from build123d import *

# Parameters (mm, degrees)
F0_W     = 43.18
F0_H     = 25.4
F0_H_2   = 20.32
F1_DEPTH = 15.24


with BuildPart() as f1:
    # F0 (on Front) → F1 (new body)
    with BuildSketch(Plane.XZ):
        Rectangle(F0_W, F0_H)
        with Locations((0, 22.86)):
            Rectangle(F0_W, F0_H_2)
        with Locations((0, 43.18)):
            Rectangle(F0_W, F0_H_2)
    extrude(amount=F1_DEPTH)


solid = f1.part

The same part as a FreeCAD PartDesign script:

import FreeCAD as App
import Part
import Sketcher
Q = App.Units.Quantity


def add_polygon(sketch, points):
    """Adds a closed chain of lines whose ends are joined by coincident constraints."""
    first, n = sketch.GeometryCount, len(points)
    for a, b in zip(points, points[1:] + points[:1]):
        sketch.addGeometry(Part.LineSegment(App.Vector(*a, 0), App.Vector(*b, 0)), False)
    for i in range(n):
        sketch.addConstraint(Sketcher.Constraint("Coincident", first + i, 2, first + (i + 1) % n, 1))

doc = App.newDocument("Part")
body = doc.addObject("PartDesign::Body", "Body")

# Sketch on XZ plane
sketch1 = doc.addObject("Sketcher::SketchObject", "Sketch")
body.addObject(sketch1)
sketch1.AttachmentSupport = (doc.XZ_Plane, [""])
sketch1.MapMode = "FlatFace"
add_polygon(sketch1, [(-22, -13), (22, -13), (22, 53), (-22, 53)])  # lines 0-3
sketch1.addConstraint(Sketcher.Constraint("Horizontal", 0))
sketch1.addConstraint(Sketcher.Constraint("Vertical", 1))
sketch1.addConstraint(Sketcher.Constraint("Horizontal", 2))
sketch1.addConstraint(Sketcher.Constraint("Vertical", 3))
sketch1.addConstraint(Sketcher.Constraint("DistanceX", 0, 1, 0, 2, Q("1.7 in")))
sketch1.addConstraint(Sketcher.Constraint("DistanceY", 1, 1, 1, 2, Q("2.6 in")))
sketch1.addConstraint(Sketcher.Constraint("DistanceY", 0, 2, -1, 1, Q("0.5 in")))
sketch1.addConstraint(Sketcher.Constraint("DistanceX", -1, 1, 0, 2, Q("0.85 in")))
pad1 = doc.addObject("PartDesign::Pad", "Pad")
body.addObject(pad1)
pad1.Profile = sketch1
pad1.Length = Q("0.6 in")

doc.recompute()
